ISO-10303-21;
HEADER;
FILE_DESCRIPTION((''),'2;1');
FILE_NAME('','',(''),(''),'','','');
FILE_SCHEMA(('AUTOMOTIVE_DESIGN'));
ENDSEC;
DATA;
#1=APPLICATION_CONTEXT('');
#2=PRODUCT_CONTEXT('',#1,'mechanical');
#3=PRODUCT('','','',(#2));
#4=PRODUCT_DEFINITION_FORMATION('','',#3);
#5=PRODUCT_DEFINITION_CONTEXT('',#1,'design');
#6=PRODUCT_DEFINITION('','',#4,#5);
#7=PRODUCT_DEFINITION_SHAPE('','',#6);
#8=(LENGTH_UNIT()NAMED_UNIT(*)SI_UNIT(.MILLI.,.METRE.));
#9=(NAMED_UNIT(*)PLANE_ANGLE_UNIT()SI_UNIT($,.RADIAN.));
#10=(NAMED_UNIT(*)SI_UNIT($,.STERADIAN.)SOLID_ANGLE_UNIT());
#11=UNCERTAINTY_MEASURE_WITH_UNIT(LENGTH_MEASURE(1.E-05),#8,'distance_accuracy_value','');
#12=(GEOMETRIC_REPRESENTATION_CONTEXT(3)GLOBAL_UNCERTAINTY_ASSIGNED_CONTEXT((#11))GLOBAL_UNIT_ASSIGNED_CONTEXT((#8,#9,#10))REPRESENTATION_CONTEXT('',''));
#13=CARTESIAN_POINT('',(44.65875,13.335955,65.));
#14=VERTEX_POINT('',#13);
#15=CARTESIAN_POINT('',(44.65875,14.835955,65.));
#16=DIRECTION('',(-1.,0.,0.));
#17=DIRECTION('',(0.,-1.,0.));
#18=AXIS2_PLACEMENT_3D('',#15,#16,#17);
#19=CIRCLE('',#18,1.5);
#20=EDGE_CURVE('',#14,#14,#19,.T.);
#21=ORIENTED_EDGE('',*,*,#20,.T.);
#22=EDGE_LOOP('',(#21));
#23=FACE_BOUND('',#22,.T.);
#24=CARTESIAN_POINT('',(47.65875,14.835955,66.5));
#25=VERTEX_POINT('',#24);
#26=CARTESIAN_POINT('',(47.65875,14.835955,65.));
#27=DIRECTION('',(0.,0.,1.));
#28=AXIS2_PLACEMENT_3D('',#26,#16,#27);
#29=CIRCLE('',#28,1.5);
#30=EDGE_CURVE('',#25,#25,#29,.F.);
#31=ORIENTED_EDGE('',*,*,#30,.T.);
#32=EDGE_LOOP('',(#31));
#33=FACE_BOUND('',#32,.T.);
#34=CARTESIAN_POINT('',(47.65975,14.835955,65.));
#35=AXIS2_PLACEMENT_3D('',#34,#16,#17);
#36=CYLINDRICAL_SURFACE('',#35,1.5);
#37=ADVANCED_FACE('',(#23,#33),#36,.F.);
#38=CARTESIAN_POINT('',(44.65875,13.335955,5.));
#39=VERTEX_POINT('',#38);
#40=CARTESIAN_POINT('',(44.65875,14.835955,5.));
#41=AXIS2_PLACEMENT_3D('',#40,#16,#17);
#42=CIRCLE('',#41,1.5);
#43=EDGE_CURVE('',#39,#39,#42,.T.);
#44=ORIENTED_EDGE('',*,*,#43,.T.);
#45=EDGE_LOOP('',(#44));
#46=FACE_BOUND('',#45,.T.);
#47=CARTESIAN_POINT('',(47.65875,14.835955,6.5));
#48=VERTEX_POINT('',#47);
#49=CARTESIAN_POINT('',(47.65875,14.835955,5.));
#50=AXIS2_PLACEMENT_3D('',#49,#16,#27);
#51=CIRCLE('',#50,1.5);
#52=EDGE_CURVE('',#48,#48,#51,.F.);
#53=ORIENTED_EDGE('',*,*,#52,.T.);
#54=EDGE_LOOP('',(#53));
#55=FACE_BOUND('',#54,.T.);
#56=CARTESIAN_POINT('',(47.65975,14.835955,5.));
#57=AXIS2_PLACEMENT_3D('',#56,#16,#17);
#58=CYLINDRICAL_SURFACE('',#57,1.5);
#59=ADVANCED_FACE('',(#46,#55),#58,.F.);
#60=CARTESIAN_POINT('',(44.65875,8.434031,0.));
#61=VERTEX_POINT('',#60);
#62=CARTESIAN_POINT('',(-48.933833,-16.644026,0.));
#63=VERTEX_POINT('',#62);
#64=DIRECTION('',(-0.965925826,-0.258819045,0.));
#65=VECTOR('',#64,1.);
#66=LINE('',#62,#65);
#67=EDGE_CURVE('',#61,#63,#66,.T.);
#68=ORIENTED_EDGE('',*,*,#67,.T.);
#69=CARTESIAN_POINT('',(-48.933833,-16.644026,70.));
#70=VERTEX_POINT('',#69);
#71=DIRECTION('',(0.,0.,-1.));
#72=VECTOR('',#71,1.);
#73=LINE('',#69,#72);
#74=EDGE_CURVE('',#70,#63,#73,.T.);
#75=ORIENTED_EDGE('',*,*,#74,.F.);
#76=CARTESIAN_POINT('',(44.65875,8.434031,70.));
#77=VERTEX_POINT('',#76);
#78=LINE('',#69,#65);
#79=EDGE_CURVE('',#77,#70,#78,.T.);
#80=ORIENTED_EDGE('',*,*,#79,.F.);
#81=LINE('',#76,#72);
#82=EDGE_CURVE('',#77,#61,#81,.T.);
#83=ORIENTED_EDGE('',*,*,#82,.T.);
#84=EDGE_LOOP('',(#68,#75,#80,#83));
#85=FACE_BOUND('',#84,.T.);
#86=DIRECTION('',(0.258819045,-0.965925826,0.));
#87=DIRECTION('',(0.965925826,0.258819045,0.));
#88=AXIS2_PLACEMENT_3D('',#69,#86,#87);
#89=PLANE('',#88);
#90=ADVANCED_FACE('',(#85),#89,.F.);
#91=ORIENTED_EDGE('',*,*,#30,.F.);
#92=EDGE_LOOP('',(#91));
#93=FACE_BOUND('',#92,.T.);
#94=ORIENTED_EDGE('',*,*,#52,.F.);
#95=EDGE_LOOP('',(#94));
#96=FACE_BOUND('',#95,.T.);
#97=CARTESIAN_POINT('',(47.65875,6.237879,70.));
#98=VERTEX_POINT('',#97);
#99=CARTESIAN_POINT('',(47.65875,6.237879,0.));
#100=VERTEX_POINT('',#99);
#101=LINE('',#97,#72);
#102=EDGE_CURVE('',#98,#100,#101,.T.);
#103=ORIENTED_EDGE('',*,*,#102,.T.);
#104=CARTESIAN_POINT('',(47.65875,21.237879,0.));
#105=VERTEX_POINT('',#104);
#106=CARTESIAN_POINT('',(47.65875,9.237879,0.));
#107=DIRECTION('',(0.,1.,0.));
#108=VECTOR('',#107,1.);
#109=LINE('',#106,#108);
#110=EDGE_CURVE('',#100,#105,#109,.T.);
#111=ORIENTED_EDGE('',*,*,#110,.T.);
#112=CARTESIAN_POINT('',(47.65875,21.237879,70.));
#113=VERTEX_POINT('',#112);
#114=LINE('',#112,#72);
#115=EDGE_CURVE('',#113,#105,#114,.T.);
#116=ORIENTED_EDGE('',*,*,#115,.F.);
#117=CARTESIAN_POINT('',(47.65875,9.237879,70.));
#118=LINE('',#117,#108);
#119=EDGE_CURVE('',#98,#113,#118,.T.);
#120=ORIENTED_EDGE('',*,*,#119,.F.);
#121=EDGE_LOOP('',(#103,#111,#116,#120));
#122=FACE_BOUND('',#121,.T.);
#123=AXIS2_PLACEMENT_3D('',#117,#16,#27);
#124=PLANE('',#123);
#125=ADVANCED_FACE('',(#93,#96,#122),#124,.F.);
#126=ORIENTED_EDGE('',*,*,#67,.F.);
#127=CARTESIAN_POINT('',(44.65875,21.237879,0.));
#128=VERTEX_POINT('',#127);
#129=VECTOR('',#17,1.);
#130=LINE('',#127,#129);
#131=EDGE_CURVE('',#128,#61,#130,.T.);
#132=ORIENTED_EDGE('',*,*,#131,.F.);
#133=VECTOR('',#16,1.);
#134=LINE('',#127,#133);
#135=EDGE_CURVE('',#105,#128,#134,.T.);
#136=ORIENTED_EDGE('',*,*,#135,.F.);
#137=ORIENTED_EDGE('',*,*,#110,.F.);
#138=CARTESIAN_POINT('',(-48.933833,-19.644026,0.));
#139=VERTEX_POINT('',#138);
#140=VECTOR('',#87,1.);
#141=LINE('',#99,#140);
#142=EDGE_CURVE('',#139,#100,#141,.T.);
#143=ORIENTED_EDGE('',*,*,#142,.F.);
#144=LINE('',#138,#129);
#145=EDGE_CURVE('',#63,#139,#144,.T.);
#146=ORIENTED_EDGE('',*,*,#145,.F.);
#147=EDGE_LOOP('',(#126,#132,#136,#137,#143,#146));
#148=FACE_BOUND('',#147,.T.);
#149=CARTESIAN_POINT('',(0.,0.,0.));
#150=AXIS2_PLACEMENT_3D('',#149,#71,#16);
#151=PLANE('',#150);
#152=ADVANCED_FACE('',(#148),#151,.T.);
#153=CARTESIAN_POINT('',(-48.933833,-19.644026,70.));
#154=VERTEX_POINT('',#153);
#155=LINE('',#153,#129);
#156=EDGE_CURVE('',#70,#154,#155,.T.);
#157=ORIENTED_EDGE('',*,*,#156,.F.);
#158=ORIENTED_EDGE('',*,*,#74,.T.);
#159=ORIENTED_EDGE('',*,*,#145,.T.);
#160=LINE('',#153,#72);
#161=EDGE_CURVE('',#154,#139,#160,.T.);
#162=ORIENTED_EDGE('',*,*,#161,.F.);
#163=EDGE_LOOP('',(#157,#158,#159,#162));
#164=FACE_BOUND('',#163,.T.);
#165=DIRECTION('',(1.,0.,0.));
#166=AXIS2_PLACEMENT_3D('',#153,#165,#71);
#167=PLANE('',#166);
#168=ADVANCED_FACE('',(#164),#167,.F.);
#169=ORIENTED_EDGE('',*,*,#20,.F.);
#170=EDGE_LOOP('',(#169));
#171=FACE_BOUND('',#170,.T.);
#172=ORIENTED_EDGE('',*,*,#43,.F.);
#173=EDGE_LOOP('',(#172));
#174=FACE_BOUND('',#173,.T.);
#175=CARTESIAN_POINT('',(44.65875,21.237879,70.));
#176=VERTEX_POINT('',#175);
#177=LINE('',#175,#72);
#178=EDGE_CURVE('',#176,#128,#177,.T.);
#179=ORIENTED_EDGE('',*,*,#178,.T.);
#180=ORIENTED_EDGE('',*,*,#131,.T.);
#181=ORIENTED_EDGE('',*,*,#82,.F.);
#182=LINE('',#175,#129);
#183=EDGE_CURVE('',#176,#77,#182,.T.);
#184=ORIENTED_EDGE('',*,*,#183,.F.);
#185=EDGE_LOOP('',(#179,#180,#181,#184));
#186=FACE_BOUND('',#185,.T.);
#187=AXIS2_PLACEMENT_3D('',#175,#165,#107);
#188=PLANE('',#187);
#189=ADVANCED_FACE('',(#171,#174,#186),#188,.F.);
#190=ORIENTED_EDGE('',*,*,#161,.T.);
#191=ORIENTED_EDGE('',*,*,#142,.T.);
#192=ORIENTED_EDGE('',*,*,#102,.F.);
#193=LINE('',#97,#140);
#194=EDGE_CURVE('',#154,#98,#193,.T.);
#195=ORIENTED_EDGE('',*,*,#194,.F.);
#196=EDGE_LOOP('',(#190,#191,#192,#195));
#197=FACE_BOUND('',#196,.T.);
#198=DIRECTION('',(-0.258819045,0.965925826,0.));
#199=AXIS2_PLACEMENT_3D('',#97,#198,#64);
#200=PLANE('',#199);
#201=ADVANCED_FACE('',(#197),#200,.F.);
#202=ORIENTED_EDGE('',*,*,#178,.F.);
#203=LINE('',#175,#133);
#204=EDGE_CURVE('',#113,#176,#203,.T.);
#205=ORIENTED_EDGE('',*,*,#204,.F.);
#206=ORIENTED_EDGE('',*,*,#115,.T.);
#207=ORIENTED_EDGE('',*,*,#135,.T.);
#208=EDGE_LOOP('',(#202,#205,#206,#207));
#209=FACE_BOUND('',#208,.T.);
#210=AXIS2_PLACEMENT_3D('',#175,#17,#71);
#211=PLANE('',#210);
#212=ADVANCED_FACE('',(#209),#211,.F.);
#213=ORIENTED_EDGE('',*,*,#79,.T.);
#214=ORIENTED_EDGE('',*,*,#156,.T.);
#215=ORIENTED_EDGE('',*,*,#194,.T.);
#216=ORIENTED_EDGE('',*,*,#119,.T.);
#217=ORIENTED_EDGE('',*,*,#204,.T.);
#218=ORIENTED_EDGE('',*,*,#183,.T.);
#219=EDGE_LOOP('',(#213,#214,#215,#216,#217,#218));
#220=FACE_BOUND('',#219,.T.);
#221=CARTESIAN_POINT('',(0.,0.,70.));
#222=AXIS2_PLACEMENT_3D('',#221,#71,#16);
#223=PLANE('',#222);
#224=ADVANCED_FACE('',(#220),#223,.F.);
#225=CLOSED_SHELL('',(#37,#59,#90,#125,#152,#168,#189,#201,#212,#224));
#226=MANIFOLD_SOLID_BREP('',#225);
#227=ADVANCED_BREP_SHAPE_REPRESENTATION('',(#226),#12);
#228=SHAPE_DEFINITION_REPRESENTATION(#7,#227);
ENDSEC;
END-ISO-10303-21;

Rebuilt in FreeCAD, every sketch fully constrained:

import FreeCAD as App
import Part
import Sketcher

V = App.Vector
Q = App.Units.Quantity

doc = App.newDocument("Part")
body = doc.addObject("PartDesign::Body", "Body")

sketch1 = body.newObject("Sketcher::SketchObject", "Sketch")
sketch1.AttachmentSupport = (doc.getObject("XY_Plane"), [""])
sketch1.MapMode = "FlatFace"
sketch1.addGeometry([
    Part.LineSegment(V(-48.9, -19.6, 0), V(47.7, 6.2, 0)),
    Part.LineSegment(V(47.7, 6.2, 0), V(47.7, 21.2, 0)),
    Part.LineSegment(V(47.7, 21.2, 0), V(44.7, 21.2, 0)),
    Part.LineSegment(V(44.7, 21.2, 0), V(44.7, 8.4, 0)),
    Part.LineSegment(V(44.7, 8.4, 0), V(-48.9, -16.6, 0)),
    Part.LineSegment(V(-48.9, -16.6, 0), V(-48.9, -19.6, 0)),
], False)
sketch1.addConstraint([
    Sketcher.Constraint("Coincident", 0, 2, 1, 1),
    Sketcher.Constraint("Coincident", 1, 2, 2, 1),
    Sketcher.Constraint("Coincident", 2, 2, 3, 1),
    Sketcher.Constraint("Coincident", 3, 2, 4, 1),
    Sketcher.Constraint("Coincident", 4, 2, 5, 1),
    Sketcher.Constraint("Coincident", 5, 2, 0, 1),
    Sketcher.Constraint("Vertical", 1),
    Sketcher.Constraint("Horizontal", 2),
    Sketcher.Constraint("Vertical", 3),
    Sketcher.Constraint("Vertical", 5),
    Sketcher.Constraint("Parallel", 0, 4),
    Sketcher.Constraint("Equal", 2, 5),
    Sketcher.Constraint("DistanceX", 2, 2, 2, 1, 3.0),
    Sketcher.Constraint("DistanceY", 1, 1, 1, 2, 15.0),
    Sketcher.Constraint("Angle", 0, Q("15 deg")),
    Sketcher.Constraint("Distance", 0, 100.0),
    Sketcher.Constraint("DistanceX", -1, 1, 0, 2, 47.65875),
    Sketcher.Constraint("DistanceY", -1, 1, 0, 2, 6.237879),
])
pad1 = body.newObject("PartDesign::Pad", "Pad")
pad1.Profile = sketch1
pad1.Length = 70

sketch2 = body.newObject("Sketcher::SketchObject", "Sketch001")
sketch2.AttachmentSupport = (doc.getObject("YZ_Plane"), [""])
sketch2.MapMode = "FlatFace"
sketch2.AttachmentOffset = App.Placement(V(0, 0, 44.65875), App.Rotation())
sketch2.addGeometry(Part.Circle(V(14.8, 5, 0), V(0, 0, 1), 1.5), False)
sketch2.addConstraint([
    Sketcher.Constraint("Diameter", 0, 3.0),
    Sketcher.Constraint("DistanceY", -1, 1, 0, 3, 5.0),
    Sketcher.Constraint("DistanceX", -1, 1, 0, 3, 14.835955),
])
pocket1 = body.newObject("PartDesign::Pocket", "Pocket")
pocket1.Profile = sketch2
pocket1.Type = "UpToFirst"
pocket1.Reversed = True

sketch3 = body.newObject("Sketcher::SketchObject", "Sketch002")
sketch3.AttachmentSupport = (doc.getObject("YZ_Plane"), [""])
sketch3.MapMode = "FlatFace"
sketch3.AttachmentOffset = App.Placement(V(0, 0, 44.65875), App.Rotation())
sketch3.addGeometry(Part.Circle(V(14.8, 65, 0), V(0, 0, 1), 1.5), False)
sketch3.addConstraint([
    Sketcher.Constraint("Diameter", 0, 3.0),
    Sketcher.Constraint("DistanceY", -1, 1, 0, 3, 65.0),
    Sketcher.Constraint("DistanceX", -1, 1, 0, 3, 14.835955),
])
pocket2 = body.newObject("PartDesign::Pocket", "Pocket001")
pocket2.Profile = sketch3
pocket2.Type = "UpToFirst"
pocket2.Reversed = True

doc.recompute()
